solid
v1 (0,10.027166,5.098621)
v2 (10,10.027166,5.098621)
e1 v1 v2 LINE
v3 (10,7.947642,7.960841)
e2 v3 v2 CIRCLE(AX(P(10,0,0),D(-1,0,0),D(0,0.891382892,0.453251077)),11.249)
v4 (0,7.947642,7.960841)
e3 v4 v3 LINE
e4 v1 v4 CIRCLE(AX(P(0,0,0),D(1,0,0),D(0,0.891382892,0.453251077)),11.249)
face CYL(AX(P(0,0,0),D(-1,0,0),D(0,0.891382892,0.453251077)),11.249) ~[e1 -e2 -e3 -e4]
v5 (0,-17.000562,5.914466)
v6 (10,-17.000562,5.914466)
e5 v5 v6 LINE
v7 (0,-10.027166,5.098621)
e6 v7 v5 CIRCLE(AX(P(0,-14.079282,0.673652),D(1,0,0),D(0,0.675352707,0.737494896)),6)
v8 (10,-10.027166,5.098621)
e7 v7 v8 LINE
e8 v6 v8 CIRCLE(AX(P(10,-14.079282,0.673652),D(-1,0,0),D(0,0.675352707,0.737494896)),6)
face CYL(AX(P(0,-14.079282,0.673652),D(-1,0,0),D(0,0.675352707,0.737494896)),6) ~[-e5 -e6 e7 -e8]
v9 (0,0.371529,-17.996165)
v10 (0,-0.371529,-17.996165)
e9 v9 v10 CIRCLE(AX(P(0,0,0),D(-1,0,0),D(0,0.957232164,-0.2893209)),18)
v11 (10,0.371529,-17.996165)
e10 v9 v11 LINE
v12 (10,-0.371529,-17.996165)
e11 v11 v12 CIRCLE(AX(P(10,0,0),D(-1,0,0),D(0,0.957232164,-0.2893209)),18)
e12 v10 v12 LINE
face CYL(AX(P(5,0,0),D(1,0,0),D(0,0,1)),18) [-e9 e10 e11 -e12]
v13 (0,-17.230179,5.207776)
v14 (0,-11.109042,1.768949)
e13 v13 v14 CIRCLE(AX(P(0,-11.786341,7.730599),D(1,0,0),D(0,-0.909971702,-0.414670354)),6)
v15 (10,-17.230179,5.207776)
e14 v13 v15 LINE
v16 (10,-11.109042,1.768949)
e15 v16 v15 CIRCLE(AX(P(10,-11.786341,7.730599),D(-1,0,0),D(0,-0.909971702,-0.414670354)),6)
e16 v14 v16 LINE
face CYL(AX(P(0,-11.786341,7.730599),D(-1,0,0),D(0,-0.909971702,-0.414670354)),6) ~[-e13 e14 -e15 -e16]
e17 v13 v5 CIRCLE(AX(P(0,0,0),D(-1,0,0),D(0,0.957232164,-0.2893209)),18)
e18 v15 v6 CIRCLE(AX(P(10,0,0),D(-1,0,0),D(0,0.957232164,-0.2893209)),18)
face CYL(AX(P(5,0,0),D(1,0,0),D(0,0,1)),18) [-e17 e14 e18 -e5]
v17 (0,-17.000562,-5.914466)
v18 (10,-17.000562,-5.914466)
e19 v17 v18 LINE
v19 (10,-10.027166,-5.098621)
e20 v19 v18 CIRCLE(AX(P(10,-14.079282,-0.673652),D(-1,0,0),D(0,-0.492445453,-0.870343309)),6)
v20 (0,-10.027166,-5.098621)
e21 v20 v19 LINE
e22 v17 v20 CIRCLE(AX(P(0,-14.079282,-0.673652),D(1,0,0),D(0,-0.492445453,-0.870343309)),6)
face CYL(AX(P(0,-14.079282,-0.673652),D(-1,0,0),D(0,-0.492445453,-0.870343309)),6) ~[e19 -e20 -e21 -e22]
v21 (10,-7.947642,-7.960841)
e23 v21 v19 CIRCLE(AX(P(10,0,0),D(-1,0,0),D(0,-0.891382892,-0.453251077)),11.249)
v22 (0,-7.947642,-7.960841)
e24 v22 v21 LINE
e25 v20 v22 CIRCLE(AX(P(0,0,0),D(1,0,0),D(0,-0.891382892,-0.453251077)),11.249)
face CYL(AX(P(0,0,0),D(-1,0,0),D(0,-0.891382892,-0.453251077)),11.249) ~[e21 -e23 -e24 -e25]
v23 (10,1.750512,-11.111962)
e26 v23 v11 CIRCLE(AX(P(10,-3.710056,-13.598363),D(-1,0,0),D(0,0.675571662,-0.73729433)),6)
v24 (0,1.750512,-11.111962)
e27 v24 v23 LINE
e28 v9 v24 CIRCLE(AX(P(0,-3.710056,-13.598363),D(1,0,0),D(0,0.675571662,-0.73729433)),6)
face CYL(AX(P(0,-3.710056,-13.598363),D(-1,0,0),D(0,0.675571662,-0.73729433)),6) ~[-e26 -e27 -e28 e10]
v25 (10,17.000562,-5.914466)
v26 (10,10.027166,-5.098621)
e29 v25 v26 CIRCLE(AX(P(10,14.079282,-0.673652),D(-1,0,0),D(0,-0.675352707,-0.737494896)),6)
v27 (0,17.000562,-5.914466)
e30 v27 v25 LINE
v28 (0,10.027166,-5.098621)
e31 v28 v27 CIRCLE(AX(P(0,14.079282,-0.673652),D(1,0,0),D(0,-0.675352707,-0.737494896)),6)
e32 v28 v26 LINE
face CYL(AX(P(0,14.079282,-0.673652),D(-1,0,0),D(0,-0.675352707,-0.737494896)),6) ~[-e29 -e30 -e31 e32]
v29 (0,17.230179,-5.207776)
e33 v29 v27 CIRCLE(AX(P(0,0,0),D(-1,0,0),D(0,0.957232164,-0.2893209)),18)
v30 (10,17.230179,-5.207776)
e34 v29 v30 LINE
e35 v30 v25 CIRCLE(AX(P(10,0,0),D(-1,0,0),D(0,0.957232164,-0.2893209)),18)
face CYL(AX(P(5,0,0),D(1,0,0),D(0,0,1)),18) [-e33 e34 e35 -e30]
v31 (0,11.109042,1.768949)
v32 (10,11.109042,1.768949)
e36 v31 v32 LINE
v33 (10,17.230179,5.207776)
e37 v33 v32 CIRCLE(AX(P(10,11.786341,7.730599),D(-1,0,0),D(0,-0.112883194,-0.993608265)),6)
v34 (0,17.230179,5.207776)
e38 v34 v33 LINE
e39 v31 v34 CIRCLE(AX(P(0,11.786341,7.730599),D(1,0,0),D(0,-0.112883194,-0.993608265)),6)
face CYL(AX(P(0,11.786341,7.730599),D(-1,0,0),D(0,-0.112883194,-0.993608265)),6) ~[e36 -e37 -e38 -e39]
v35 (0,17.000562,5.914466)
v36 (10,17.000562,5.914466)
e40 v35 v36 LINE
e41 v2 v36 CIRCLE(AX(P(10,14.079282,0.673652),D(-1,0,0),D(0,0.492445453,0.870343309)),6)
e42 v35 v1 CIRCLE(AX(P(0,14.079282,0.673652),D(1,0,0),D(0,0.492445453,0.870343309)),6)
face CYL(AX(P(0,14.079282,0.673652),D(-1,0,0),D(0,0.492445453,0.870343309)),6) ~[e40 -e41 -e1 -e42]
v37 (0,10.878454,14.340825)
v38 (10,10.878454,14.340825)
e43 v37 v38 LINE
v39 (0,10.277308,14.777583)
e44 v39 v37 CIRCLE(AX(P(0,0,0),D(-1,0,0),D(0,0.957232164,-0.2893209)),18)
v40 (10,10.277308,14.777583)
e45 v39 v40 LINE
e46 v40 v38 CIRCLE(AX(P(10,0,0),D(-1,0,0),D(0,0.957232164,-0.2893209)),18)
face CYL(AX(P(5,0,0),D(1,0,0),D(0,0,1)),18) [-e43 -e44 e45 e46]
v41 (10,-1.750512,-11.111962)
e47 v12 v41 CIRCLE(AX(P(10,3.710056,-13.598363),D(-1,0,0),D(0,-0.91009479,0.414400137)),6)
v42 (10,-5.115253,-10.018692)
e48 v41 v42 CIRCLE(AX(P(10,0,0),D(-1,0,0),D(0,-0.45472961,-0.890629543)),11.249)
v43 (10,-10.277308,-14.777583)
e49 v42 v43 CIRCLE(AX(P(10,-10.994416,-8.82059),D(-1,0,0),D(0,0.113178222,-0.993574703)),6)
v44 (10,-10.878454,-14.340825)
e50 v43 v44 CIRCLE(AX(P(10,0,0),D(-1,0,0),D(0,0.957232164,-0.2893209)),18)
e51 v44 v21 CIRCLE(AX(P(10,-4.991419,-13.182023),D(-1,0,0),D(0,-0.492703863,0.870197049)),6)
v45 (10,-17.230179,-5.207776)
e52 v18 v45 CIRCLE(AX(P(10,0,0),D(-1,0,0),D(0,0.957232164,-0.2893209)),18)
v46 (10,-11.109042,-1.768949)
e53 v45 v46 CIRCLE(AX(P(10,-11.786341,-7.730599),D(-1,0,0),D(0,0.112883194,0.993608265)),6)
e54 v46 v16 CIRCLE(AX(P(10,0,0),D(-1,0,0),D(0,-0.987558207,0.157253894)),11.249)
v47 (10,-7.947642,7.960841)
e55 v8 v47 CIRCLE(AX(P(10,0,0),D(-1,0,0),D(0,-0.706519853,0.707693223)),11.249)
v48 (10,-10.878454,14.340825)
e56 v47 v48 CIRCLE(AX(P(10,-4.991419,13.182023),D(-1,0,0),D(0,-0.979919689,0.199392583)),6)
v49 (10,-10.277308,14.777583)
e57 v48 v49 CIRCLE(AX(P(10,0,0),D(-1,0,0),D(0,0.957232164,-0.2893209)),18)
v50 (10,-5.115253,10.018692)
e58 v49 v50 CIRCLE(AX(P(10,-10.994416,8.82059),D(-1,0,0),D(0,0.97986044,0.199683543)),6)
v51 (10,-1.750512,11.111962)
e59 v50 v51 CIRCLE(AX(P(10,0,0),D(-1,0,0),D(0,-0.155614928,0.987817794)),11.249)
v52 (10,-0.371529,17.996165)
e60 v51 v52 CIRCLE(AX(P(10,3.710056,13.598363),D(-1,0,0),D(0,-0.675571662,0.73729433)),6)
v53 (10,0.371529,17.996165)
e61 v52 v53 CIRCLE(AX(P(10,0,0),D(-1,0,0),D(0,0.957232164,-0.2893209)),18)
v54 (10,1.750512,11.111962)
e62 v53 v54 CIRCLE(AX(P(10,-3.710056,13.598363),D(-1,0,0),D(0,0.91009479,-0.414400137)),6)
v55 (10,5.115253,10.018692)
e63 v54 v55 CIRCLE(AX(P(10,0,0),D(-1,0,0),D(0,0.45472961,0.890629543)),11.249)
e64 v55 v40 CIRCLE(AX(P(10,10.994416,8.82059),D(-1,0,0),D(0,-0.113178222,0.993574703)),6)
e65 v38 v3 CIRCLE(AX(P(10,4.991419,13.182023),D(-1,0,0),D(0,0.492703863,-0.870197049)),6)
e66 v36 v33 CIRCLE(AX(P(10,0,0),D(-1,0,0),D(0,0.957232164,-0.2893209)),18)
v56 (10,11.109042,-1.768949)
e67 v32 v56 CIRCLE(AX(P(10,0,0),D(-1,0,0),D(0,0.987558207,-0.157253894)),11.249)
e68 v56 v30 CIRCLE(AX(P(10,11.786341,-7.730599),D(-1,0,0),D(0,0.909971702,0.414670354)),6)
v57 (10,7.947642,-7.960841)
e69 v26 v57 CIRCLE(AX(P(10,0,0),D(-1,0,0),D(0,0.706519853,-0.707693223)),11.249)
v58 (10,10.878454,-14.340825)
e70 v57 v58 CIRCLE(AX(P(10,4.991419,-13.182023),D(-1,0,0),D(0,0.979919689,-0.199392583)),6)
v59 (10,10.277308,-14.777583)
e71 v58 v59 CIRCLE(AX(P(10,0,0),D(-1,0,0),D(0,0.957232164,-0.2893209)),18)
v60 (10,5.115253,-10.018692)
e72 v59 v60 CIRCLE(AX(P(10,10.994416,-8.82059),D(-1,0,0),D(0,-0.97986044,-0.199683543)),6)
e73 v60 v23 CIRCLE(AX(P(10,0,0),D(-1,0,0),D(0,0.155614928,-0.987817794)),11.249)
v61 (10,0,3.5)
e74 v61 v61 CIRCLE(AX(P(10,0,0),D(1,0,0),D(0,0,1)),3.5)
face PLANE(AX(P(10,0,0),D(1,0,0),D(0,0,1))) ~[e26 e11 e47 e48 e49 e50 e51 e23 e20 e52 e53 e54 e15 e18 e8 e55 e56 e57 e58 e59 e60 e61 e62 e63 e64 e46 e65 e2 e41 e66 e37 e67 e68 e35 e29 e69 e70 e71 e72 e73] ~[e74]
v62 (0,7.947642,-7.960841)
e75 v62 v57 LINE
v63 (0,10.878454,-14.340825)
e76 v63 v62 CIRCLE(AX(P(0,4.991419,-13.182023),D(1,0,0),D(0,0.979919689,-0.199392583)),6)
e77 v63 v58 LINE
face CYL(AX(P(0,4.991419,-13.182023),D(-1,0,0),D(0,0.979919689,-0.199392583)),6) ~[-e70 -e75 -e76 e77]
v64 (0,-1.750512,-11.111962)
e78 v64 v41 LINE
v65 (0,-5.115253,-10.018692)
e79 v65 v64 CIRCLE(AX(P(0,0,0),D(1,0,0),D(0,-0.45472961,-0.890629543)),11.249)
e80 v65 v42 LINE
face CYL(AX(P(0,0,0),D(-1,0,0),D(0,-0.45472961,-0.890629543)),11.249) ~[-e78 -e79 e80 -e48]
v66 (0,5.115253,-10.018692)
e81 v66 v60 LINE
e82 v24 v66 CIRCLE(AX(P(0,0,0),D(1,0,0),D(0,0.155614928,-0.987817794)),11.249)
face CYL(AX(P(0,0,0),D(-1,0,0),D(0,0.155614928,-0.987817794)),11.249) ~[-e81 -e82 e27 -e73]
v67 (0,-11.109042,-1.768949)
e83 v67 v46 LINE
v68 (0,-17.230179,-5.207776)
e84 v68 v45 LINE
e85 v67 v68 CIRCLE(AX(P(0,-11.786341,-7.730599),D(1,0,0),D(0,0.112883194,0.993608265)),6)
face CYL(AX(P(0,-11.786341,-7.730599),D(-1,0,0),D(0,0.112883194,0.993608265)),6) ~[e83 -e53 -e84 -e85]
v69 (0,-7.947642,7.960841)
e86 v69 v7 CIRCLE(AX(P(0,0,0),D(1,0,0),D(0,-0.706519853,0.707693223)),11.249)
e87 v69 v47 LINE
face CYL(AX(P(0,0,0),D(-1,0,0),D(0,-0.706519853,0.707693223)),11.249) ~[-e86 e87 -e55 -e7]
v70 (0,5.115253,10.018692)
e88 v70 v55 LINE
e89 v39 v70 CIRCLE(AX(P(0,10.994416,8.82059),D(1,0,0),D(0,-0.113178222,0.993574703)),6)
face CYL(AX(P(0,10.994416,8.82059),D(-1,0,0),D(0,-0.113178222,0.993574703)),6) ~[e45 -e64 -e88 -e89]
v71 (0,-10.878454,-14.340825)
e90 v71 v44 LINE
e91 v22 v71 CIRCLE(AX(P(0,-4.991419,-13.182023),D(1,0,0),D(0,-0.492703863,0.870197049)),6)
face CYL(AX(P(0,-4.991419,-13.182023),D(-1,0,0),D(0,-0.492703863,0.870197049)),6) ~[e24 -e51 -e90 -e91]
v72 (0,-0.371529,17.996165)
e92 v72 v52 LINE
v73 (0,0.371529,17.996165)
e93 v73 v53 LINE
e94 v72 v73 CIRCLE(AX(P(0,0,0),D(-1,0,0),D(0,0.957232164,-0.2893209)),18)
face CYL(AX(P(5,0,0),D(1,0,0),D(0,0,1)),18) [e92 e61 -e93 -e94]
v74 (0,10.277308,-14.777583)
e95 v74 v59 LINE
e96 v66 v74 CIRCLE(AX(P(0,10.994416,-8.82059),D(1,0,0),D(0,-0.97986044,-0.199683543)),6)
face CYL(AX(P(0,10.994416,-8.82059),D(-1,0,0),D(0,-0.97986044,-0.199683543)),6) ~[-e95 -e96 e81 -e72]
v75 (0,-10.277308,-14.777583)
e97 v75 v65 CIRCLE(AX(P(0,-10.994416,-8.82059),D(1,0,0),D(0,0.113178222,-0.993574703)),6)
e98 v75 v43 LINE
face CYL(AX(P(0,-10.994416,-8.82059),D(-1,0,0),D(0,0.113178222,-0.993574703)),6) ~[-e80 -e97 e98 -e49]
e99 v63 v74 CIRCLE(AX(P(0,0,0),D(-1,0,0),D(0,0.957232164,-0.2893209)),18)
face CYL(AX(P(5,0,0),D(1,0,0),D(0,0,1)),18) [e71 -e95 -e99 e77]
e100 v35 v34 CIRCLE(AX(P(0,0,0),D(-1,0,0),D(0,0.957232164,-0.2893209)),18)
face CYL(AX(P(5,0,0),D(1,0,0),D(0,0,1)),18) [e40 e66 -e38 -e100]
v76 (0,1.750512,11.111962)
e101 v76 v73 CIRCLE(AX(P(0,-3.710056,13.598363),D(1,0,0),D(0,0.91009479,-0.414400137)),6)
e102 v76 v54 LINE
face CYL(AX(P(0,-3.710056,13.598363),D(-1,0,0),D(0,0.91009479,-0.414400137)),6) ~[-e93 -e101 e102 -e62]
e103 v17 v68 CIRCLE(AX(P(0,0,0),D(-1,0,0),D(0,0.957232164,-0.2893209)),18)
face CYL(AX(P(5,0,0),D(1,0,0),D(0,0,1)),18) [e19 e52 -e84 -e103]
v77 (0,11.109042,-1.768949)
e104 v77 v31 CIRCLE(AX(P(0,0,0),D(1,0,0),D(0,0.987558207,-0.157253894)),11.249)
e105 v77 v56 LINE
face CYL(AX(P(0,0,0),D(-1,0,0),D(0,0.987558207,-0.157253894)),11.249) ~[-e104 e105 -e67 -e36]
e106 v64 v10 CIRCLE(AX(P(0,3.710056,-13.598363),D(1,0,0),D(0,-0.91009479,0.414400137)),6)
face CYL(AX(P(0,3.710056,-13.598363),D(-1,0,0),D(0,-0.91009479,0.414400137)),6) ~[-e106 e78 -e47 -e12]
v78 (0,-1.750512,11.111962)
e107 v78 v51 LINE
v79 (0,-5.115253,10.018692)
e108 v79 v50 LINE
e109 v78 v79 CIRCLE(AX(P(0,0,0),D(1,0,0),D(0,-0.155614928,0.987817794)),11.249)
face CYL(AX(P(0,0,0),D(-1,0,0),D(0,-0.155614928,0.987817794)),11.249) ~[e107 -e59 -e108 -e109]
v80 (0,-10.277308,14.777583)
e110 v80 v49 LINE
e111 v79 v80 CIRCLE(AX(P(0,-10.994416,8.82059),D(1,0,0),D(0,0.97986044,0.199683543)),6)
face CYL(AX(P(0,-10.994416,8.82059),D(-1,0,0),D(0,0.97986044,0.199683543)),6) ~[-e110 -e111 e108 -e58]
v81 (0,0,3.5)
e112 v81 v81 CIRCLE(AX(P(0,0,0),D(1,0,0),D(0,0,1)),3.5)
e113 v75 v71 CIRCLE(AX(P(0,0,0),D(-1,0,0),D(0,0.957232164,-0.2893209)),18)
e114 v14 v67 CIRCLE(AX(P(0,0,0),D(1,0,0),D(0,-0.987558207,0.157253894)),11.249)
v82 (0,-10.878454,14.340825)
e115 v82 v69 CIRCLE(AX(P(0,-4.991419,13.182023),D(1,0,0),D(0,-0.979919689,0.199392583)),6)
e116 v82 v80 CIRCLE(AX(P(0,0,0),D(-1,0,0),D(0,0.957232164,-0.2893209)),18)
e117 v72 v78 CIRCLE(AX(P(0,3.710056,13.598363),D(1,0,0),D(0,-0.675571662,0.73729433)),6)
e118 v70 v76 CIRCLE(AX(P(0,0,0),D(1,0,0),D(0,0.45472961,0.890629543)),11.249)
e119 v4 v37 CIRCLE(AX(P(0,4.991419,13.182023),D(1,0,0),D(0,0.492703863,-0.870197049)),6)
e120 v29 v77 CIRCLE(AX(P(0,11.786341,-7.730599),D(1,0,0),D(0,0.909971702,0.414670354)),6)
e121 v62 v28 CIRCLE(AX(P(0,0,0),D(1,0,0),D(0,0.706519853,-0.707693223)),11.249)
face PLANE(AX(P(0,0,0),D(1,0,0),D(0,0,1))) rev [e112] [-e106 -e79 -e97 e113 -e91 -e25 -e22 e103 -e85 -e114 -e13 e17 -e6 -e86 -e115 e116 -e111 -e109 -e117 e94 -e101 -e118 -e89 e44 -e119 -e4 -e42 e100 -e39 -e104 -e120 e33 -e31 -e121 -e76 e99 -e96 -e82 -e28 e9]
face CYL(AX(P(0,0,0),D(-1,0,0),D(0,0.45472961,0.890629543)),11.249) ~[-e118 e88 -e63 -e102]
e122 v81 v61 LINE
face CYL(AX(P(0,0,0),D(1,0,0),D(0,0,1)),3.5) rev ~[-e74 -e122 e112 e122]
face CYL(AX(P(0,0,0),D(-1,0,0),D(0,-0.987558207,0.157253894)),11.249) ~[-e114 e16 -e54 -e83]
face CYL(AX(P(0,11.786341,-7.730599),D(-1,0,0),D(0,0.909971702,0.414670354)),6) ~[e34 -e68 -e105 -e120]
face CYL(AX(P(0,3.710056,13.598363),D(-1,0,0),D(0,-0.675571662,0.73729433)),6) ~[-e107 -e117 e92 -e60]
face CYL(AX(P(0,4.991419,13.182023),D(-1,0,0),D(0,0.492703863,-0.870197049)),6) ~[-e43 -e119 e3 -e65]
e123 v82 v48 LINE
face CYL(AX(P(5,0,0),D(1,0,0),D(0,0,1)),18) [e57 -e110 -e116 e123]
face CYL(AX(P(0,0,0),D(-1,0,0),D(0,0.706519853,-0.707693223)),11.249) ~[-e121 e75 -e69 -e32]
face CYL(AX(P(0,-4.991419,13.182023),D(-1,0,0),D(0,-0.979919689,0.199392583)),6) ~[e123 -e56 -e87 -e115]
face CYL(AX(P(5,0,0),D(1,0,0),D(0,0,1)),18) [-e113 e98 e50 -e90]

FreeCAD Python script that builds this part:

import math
import FreeCAD as App
import Part
import Sketcher
from FreeCAD import Vector

doc = App.newDocument("Part")
body = doc.addObject("PartDesign::Body", "Body")

# Sketch on XZ plane
sketch1 = body.newObject("Sketcher::SketchObject", "Sketch")
sketch1.AttachmentSupport = (doc.getObject("XZ_Plane"), [""])
sketch1.MapMode = "FlatFace"
sketch1.addGeometry([
    Part.LineSegment(Vector(0, -18, 0), Vector(0, 0, 0)),
    Part.LineSegment(Vector(0, 0, 0), Vector(10, 0, 0)),
    Part.LineSegment(Vector(10, 0, 0), Vector(10, -18, 0)),
    Part.LineSegment(Vector(10, -18, 0), Vector(0, -18, 0)),
], False)
sketch1.addConstraint([
    Sketcher.Constraint("Coincident", 0, 2, 1, 1),
    Sketcher.Constraint("Coincident", 1, 2, 2, 1),
    Sketcher.Constraint("Coincident", 2, 2, 3, 1),
    Sketcher.Constraint("Coincident", 3, 2, 0, 1),
    Sketcher.Constraint("Vertical", 0),
    Sketcher.Constraint("Horizontal", 1),
    Sketcher.Constraint("Vertical", 2),
    Sketcher.Constraint("Horizontal", 3),
    Sketcher.Constraint("Coincident", 0, 2, -1, 1),
    Sketcher.Constraint("DistanceX", 1, 1, 1, 2, 10.0),
    Sketcher.Constraint("DistanceY", 0, 1, 0, 2, 18.0),
])
revolution = body.newObject("PartDesign::Revolution", "Revolution")
revolution.Profile = sketch1
revolution.ReferenceAxis = (sketch1, ["H_Axis"])
revolution.Angle = 360

# Sketch on YZ plane
sketch2 = body.newObject("Sketcher::SketchObject", "Sketch001")
sketch2.AttachmentSupport = (doc.getObject("YZ_Plane"), [""])
sketch2.MapMode = "FlatFace"
sketch2.addGeometry([
    Part.ArcOfCircle(Part.Circle(Vector(0, 0, 0), Vector(0, 0, 1), 11.2), math.radians(-9.05), math.radians(9.05)),
    Part.ArcOfCircle(Part.Circle(Vector(11.8, -7.7, 0), Vector(0, 0, 1), 6), math.radians(24), math.radians(96)),
    Part.ArcOfCircle(Part.Circle(Vector(0, 0, 0), Vector(0, 0, 1), 18), math.radians(-17), math.radians(17)),
    Part.ArcOfCircle(Part.Circle(Vector(11.8, 7.7, 0), Vector(0, 0, 1), 6), math.radians(-96), math.radians(-24)),
], False)
sketch2.addConstraint([
    Sketcher.Constraint("Coincident", 0, 1, 1, 2),
    Sketcher.Constraint("Coincident", 1, 1, 2, 1),
    Sketcher.Constraint("Coincident", 2, 2, 3, 2),
    Sketcher.Constraint("Coincident", 3, 1, 0, 2),
    Sketcher.Constraint("Coincident", 0, 3, -1, 1),
    Sketcher.Constraint("Coincident", 2, 3, -1, 1),
    Sketcher.Constraint("Equal", 1, 3),
    Sketcher.Constraint("Symmetric", 1, 3, 3, 3, -1),
    Sketcher.Constraint("Radius", 1, 6.0),
    Sketcher.Constraint("Radius", 0, 11.249),
    Sketcher.Constraint("Radius", 2, 18.0254),
    Sketcher.Constraint("DistanceY", 1, 3, -1, 1, 7.730599),
    Sketcher.Constraint("DistanceX", 0, 1, 1, 3, 0.677299),
])
pocket1 = body.newObject("PartDesign::Pocket", "Pocket")
pocket1.Profile = sketch2
pocket1.Type = "ThroughAll"
pocket1.Reversed = True
doc.recompute()

polarpattern = body.newObject("PartDesign::PolarPattern", "PolarPattern")
polarpattern.Originals = [pocket1]
polarpattern.Axis = (doc.getObject("X_Axis"), [""])
polarpattern.Angle = 360
polarpattern.Occurrences = 10
body.Tip = polarpattern

# Sketch on YZ plane
sketch3 = body.newObject("Sketcher::SketchObject", "Sketch002")
sketch3.AttachmentSupport = (doc.getObject("YZ_Plane"), [""])
sketch3.MapMode = "FlatFace"
sketch3.addGeometry(Part.Circle(Vector(0, 0, 0), Vector(0, 0, 1), 3.5), False)
sketch3.addConstraint([
    Sketcher.Constraint("Coincident", 0, 3, -1, 1),
    Sketcher.Constraint("Diameter", 0, 7.0),
])
pocket2 = body.newObject("PartDesign::Pocket", "Pocket001")
pocket2.Profile = sketch3
pocket2.Length = 100.000102
pocket2.Midplane = True

doc.recompute()
